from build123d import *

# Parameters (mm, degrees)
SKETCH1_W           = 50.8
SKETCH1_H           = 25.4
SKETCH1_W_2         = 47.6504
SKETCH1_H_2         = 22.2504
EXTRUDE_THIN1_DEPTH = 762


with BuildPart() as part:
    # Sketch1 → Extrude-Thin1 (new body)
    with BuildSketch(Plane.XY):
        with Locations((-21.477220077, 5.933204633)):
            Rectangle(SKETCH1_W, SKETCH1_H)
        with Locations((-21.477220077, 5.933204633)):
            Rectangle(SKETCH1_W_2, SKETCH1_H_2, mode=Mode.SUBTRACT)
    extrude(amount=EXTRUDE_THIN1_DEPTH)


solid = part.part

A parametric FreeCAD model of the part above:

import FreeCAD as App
import Part
import Sketcher

V = App.Vector
Q = App.Units.Quantity


def add_polygon(sketch, points):
    """Adds a closed chain of lines whose ends are joined by coincident constraints."""
    first, n = sketch.GeometryCount, len(points)
    for a, b in zip(points, points[1:] + points[:1]):
        sketch.addGeometry(Part.LineSegment(App.Vector(*a, 0), App.Vector(*b, 0)), False)
    for i in range(n):
        sketch.addConstraint(Sketcher.Constraint("Coincident", first + i, 2, first + (i + 1) % n, 1))

doc = App.newDocument("Part")
body = doc.addObject("PartDesign::Body", "Body")

# Sketch on XY plane
sketch1 = doc.addObject("Sketcher::SketchObject", "Sketch")
body.addObject(sketch1)
sketch1.AttachmentSupport = (doc.XY_Plane, [""])
sketch1.MapMode = "FlatFace"
add_polygon(sketch1, [(-46.87722, 18.633205), (-46.87722, -6.766795), (3.92278, -6.766795), (3.92278, 18.633205)])  # lines 0-3
add_polygon(sketch1, [(2.34798, -5.191995), (-45.30242, -5.191995), (-45.30242, 17.058405), (2.34798, 17.058405)])  # lines 4-7
sketch1.addConstraint([
    Sketcher.Constraint("Vertical", 0),
    Sketcher.Constraint("Horizontal", 1),
    Sketcher.Constraint("Vertical", 2),
    Sketcher.Constraint("Horizontal", 3),
    Sketcher.Constraint("Horizontal", 4),
    Sketcher.Constraint("Vertical", 5),
    Sketcher.Constraint("Horizontal", 6),
    Sketcher.Constraint("Vertical", 7),
    Sketcher.Constraint("DistanceX", 1, 1, 1, 2, Q("2 in")),
    Sketcher.Constraint("DistanceY", 0, 2, 0, 1, Q("1 in")),
    Sketcher.Constraint("DistanceX", 4, 2, 4, 1, Q("1.876 in")),
    Sketcher.Constraint("DistanceY", 5, 1, 5, 2, Q("0.876 in")),
    Sketcher.Constraint("DistanceX", 0, 2, 4, 2, Q("0.062 in")),
    Sketcher.Constraint("DistanceY", 0, 2, 4, 2, Q("0.062 in")),
    Sketcher.Constraint("DistanceX", 0, 2, -1, 1, 46.87722),
    Sketcher.Constraint("DistanceY", 0, 2, -1, 1, 6.766795),
])
pad1 = doc.addObject("PartDesign::Pad", "Pad")
body.addObject(pad1)
pad1.Profile = sketch1
pad1.Length = Q("30 in")

doc.recompute()
